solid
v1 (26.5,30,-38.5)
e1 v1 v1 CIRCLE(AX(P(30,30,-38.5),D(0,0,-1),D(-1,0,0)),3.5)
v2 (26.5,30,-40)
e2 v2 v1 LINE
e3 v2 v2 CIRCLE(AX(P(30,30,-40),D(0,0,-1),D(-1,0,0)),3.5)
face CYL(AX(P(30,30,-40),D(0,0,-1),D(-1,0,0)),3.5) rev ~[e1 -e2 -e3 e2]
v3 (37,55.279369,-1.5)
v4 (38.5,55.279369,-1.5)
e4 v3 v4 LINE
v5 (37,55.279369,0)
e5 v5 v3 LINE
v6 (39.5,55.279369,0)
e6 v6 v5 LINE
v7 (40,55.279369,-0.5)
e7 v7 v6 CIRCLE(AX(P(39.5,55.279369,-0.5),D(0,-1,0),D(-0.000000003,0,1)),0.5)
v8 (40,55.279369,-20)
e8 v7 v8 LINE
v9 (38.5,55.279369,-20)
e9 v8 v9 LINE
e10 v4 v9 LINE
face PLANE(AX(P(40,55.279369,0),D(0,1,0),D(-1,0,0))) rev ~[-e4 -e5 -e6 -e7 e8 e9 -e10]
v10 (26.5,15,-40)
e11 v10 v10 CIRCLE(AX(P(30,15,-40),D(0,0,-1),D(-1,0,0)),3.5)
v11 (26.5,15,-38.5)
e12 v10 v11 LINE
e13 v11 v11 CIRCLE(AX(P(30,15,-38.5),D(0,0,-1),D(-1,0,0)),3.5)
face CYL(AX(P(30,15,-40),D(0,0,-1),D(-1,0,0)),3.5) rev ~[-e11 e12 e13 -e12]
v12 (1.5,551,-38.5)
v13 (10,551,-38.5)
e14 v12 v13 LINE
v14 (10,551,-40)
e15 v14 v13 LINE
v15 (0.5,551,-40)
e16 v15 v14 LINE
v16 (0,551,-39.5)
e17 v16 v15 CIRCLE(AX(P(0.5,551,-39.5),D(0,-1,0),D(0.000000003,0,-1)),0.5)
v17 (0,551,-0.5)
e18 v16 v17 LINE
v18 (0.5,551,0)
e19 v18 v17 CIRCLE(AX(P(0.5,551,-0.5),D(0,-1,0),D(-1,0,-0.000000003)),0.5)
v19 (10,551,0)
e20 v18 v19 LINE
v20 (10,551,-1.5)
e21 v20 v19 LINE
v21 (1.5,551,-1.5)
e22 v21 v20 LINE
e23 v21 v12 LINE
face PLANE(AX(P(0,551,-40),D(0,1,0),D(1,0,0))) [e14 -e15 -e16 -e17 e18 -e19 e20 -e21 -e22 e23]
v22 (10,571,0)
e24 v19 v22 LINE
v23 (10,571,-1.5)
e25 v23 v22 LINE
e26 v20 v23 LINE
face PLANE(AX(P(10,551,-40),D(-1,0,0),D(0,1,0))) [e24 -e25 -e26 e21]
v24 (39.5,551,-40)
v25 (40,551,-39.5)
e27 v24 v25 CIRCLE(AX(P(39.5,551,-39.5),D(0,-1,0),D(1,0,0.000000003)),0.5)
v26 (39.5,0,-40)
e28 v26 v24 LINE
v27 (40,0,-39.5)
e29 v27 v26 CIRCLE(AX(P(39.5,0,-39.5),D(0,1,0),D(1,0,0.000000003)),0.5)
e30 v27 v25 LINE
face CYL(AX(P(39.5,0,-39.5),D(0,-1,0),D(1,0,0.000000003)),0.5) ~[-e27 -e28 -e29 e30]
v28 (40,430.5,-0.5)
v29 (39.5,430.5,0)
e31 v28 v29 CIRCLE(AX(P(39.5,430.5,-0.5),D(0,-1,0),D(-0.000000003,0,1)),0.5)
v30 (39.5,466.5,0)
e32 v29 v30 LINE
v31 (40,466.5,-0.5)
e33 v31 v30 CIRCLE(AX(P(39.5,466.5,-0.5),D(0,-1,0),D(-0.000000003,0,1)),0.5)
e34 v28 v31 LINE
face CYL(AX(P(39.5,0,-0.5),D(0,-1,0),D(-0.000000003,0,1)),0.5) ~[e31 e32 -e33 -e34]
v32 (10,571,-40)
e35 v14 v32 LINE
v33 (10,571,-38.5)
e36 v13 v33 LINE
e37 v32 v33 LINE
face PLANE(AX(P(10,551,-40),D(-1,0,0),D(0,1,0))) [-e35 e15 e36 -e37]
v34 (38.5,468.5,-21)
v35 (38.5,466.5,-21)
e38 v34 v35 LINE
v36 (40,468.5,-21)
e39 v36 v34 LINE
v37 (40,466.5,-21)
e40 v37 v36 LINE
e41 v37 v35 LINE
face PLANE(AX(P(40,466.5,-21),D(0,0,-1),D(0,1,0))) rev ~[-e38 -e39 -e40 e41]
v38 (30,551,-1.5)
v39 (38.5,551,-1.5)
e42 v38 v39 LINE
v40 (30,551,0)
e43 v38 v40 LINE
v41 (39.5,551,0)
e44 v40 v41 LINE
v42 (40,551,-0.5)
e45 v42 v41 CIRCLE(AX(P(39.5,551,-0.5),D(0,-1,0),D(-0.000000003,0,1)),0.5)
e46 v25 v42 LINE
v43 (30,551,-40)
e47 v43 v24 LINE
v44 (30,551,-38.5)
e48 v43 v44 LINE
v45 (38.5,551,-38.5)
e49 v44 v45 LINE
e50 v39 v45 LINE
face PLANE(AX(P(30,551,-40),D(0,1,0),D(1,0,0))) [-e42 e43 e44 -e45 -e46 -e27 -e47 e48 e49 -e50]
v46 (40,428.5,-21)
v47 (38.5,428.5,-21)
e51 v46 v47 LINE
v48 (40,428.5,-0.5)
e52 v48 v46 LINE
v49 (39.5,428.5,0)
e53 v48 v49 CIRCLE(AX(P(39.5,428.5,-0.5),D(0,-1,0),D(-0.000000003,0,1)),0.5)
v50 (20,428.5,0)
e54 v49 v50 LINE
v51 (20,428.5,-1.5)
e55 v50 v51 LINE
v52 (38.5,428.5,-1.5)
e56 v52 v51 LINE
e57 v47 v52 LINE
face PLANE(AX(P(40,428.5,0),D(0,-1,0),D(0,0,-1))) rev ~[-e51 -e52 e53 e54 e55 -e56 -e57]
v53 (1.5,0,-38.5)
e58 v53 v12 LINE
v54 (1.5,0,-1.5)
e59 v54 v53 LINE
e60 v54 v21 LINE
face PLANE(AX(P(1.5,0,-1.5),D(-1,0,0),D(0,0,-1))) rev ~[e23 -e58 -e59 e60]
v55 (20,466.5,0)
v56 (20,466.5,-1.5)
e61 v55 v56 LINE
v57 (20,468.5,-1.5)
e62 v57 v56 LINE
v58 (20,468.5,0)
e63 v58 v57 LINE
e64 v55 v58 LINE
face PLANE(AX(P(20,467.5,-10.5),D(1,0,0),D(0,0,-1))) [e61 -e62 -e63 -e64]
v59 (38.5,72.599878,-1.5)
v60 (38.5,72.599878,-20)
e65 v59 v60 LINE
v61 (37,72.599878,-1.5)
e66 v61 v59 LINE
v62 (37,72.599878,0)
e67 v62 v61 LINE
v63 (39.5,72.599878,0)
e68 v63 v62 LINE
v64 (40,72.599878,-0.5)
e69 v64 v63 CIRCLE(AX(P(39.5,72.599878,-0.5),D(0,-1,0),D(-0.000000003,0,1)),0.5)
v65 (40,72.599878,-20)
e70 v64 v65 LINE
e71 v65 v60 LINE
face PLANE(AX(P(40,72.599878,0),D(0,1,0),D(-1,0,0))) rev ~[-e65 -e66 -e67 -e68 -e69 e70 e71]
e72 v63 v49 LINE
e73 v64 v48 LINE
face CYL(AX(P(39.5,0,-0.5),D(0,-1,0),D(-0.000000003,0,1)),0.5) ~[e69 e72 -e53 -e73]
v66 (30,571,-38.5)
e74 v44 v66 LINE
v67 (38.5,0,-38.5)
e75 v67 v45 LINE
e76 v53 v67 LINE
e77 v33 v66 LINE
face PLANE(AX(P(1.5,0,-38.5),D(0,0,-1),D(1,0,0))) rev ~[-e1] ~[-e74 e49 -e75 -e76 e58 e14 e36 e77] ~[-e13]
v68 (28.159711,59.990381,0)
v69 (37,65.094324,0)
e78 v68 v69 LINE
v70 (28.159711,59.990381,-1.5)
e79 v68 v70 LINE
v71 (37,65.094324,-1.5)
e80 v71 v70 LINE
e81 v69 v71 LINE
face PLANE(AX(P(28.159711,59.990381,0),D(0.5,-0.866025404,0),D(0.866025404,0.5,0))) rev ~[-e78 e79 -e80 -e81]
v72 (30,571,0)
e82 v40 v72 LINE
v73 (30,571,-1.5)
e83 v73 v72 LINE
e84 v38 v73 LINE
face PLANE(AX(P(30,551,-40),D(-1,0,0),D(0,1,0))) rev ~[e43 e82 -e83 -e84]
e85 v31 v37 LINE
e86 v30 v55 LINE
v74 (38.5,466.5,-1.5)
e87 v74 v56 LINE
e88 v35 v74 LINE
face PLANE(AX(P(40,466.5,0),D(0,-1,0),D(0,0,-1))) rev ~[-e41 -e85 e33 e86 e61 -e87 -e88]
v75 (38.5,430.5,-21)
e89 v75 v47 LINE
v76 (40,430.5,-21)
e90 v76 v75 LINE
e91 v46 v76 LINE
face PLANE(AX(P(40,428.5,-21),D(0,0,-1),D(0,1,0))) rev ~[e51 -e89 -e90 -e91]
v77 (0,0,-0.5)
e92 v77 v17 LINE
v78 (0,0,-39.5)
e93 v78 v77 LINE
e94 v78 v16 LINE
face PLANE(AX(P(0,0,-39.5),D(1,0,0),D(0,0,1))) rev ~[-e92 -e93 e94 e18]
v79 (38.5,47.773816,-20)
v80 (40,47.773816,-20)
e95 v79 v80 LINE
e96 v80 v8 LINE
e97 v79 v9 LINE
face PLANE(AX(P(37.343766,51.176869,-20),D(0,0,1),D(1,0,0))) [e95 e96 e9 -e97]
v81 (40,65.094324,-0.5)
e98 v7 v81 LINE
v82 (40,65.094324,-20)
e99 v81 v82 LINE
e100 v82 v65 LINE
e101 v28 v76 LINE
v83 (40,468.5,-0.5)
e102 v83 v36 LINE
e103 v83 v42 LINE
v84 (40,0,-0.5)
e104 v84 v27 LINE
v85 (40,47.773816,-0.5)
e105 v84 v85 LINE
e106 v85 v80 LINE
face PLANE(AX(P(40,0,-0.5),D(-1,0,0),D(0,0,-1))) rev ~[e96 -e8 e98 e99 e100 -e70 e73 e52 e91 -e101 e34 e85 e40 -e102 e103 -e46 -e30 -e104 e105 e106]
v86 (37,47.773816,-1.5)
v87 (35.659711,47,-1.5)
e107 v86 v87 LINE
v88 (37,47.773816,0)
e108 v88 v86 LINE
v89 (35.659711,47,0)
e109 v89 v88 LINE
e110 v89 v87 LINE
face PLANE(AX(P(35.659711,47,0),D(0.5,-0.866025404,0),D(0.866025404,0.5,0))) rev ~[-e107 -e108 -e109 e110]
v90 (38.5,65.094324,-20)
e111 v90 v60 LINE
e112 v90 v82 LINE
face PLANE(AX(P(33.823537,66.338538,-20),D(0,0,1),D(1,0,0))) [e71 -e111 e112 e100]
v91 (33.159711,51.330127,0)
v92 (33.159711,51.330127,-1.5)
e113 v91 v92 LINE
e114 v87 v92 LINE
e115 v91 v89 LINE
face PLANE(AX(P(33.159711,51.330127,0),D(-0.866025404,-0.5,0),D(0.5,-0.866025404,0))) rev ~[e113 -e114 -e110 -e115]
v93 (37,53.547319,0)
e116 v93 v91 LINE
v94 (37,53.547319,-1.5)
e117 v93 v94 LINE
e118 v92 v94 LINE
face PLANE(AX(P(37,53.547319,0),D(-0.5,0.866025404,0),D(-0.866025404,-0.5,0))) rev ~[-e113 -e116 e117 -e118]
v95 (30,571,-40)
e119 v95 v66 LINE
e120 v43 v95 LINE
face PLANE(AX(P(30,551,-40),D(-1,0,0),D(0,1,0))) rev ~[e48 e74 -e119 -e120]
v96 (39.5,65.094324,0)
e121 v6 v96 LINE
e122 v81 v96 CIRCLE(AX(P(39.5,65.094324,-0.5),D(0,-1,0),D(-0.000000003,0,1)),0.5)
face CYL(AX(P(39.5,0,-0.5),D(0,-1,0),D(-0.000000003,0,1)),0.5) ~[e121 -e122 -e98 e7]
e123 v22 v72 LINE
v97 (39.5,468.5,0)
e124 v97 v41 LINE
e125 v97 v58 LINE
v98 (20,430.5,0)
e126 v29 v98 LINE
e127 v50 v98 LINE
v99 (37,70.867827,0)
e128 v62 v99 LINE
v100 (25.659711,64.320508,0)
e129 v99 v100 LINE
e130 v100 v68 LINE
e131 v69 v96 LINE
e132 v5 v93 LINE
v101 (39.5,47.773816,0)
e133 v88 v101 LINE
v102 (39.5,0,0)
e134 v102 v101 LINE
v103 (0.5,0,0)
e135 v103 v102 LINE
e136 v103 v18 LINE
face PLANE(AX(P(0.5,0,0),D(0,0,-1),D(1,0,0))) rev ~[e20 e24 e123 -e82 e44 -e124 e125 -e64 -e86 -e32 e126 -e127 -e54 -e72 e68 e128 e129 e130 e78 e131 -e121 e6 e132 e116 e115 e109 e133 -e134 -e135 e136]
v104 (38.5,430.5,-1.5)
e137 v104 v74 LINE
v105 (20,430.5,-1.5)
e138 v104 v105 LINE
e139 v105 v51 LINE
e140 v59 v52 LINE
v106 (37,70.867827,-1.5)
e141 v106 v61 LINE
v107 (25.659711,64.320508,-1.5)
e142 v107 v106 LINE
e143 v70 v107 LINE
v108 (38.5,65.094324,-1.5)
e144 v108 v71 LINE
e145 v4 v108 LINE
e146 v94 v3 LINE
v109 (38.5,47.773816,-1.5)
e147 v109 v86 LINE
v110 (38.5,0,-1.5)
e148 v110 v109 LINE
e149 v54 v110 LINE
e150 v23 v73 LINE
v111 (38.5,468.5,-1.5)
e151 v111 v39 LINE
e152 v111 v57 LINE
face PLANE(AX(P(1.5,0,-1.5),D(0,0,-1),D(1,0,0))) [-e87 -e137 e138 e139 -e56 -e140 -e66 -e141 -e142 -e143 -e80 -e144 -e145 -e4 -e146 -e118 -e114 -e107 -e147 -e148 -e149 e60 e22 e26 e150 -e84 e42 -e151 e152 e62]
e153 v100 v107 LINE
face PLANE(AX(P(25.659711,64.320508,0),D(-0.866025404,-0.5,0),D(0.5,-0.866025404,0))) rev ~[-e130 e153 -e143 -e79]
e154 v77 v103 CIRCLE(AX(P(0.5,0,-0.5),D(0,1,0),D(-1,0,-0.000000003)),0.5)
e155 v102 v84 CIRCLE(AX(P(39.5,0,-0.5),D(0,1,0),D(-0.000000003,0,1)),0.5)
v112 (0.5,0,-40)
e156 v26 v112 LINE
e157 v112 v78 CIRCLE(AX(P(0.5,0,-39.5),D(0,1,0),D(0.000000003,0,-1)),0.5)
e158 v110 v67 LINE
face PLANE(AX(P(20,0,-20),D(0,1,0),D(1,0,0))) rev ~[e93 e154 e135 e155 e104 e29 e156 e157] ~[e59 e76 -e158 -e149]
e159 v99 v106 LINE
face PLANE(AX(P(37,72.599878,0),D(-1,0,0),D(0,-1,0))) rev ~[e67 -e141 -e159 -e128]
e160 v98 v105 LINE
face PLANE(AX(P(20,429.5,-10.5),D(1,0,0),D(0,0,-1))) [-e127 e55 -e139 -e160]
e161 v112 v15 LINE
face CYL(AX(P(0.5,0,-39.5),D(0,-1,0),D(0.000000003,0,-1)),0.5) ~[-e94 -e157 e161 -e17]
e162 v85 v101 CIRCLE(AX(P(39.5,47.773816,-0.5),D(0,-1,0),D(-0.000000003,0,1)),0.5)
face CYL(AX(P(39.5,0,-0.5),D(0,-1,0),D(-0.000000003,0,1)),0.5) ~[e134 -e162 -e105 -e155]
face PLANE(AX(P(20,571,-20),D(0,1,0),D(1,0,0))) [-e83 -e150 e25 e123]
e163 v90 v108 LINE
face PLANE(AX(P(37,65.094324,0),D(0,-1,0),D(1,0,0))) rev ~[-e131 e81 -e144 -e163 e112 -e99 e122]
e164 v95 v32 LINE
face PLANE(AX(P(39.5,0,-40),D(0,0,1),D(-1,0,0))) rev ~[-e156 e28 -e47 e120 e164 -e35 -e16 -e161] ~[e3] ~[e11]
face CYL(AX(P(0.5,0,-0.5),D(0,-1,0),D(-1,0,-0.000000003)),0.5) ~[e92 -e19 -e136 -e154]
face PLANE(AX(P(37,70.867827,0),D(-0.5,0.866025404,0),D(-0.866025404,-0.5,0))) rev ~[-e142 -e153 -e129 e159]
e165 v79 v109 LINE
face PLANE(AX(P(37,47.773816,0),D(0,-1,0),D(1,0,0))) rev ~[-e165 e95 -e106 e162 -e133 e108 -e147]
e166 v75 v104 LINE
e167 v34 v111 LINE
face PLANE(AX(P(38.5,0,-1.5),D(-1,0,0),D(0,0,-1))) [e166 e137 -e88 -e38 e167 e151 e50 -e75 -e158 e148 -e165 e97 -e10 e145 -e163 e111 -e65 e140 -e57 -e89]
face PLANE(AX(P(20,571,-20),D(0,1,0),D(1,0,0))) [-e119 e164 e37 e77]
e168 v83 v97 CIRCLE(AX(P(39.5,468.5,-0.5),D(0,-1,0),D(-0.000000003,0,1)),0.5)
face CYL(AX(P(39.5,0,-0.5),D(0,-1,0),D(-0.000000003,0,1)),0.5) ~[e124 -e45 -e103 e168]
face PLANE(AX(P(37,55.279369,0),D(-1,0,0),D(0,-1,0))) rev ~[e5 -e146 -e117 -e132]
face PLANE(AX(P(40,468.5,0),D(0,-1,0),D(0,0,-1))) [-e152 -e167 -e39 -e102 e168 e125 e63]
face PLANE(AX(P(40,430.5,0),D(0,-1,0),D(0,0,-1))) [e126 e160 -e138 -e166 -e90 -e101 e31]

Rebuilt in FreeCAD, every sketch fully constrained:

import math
import FreeCAD as App
import Part
import Sketcher

V = App.Vector
Q = App.Units.Quantity


def add_polygon(sketch, points):
    """Adds a closed chain of lines whose ends are joined by coincident constraints."""
    first, n = sketch.GeometryCount, len(points)
    for a, b in zip(points, points[1:] + points[:1]):
        sketch.addGeometry(Part.LineSegment(App.Vector(*a, 0), App.Vector(*b, 0)), False)
    for i in range(n):
        sketch.addConstraint(Sketcher.Constraint("Coincident", first + i, 2, first + (i + 1) % n, 1))

doc = App.newDocument("Part")
body = doc.addObject("PartDesign::Body", "Body")

sketch1 = doc.addObject("Sketcher::SketchObject", "Sketch")
body.addObject(sketch1)
sketch1.AttachmentSupport = (doc.XZ_Plane, [""])
sketch1.MapMode = "FlatFace"
sketch1.addGeometry(Part.LineSegment(V(0.5, 0, 0), V(39.5, 0, 0)), False)
sketch1.addGeometry(Part.ArcOfCircle(Part.Circle(V(39.5, -0.5, 0), V(0, 0, 1), 0.5), math.radians(0), math.radians(90)), False)
sketch1.addGeometry(Part.LineSegment(V(40, -0.5, 0), V(40, -39.5, 0)), False)
sketch1.addGeometry(Part.ArcOfCircle(Part.Circle(V(39.5, -39.5, 0), V(0, 0, 1), 0.5), math.radians(-90), math.radians(0)), False)
sketch1.addGeometry(Part.LineSegment(V(39.5, -40, 0), V(0.5, -40, 0)), False)
sketch1.addGeometry(Part.ArcOfCircle(Part.Circle(V(0.5, -39.5, 0), V(0, 0, 1), 0.5), math.radians(180), math.radians(270)), False)
sketch1.addGeometry(Part.LineSegment(V(0, -39.5, 0), V(0, -0.5, 0)), False)
sketch1.addGeometry(Part.ArcOfCircle(Part.Circle(V(0.5, -0.5, 0), V(0, 0, 1), 0.5), math.radians(90), math.radians(180)), False)
add_polygon(sketch1, [(38.5, -1.5), (1.5, -1.5), (1.5, -38.5), (38.5, -38.5)])
sketch1.addConstraint([
    Sketcher.Constraint("Tangent", 0, 2, 1, 2),
    Sketcher.Constraint("Tangent", 1, 1, 2, 1),
    Sketcher.Constraint("Tangent", 2, 2, 3, 2),
    Sketcher.Constraint("Tangent", 3, 1, 4, 1),
    Sketcher.Constraint("Tangent", 4, 2, 5, 2),
    Sketcher.Constraint("Tangent", 5, 1, 6, 1),
    Sketcher.Constraint("Tangent", 6, 2, 7, 2),
    Sketcher.Constraint("Tangent", 7, 1, 0, 1),
    Sketcher.Constraint("Horizontal", 0),
    Sketcher.Constraint("Vertical", 2),
    Sketcher.Constraint("Horizontal", 4),
    Sketcher.Constraint("Vertical", 6),
    Sketcher.Constraint("Horizontal", 8),
    Sketcher.Constraint("Vertical", 9),
    Sketcher.Constraint("Horizontal", 10),
    Sketcher.Constraint("Vertical", 11),
    Sketcher.Constraint("Equal", 1, 3),
    Sketcher.Constraint("Equal", 3, 5),
    Sketcher.Constraint("Equal", 5, 7),
    Sketcher.Constraint("PointOnObject", 0, 2, -1),
    Sketcher.Constraint("PointOnObject", 5, 1, -2),
    Sketcher.Constraint("Equal", 4, 2),
    Sketcher.Constraint("Equal", 10, 9),
    Sketcher.Constraint("Radius", 1, Q("0.5 mm")),
    Sketcher.Constraint("DistanceX", 0, 1, 0, 2, Q("39 mm")),
    Sketcher.Constraint("DistanceX", 8, 2, 8, 1, Q("37 mm")),
    Sketcher.Constraint("DistanceX", 7, 3, 8, 2, Q("1 mm")),
    Sketcher.Constraint("DistanceY", 8, 2, 7, 3, Q("1 mm")),
])
pad1 = doc.addObject("PartDesign::Pad", "Pad")
body.addObject(pad1)
pad1.Profile = sketch1
pad1.Length = 571
pad1.Reversed = True

sketch2 = doc.addObject("Sketcher::SketchObject", "Sketch001")
body.addObject(sketch2)
sketch2.AttachmentSupport = (doc.XY_Plane, [""])
sketch2.MapMode = "FlatFace"
sketch2.AttachmentOffset = App.Placement(V(0, 0, -40), App.Rotation())
add_polygon(sketch2, [(30, 571), (30, 551), (40, 551), (40, 571)])
add_polygon(sketch2, [(0, 571), (0, 551), (10, 551), (10, 571)])
sketch2.addConstraint([
    Sketcher.Constraint("Vertical", 0),
    Sketcher.Constraint("Horizontal", 1),
    Sketcher.Constraint("Vertical", 2),
    Sketcher.Constraint("Horizontal", 3),
    Sketcher.Constraint("Vertical", 4),
    Sketcher.Constraint("Horizontal", 5),
    Sketcher.Constraint("Vertical", 6),
    Sketcher.Constraint("Horizontal", 7),
    Sketcher.Constraint("PointOnObject", 4, 2, -2),
    Sketcher.Constraint("Horizontal", 1, 2, 4, 2),
    Sketcher.Constraint("Horizontal", 3, 2, 6, 2),
    Sketcher.Constraint("Equal", 3, 5),
    Sketcher.Constraint("DistanceX", 1, 1, 1, 2, Q("10 mm")),
    Sketcher.Constraint("DistanceY", 0, 2, 0, 1, Q("20 mm")),
    Sketcher.Constraint("DistanceX", -1, 1, 0, 2, Q("30 mm")),
    Sketcher.Constraint("DistanceY", -1, 1, 0, 2, Q("551 mm")),
])
pocket1 = doc.addObject("PartDesign::Pocket", "Pocket")
body.addObject(pocket1)
pocket1.Profile = sketch2
pocket1.Length = 40
pocket1.Reversed = True

sketch3 = doc.addObject("Sketcher::SketchObject", "Sketch002")
body.addObject(sketch3)
sketch3.AttachmentSupport = (doc.YZ_Plane, [""])
sketch3.MapMode = "FlatFace"
sketch3.AttachmentOffset = App.Placement(V(0, 0, 40), App.Rotation())
add_polygon(sketch3, [(468.5, 0), (466.5, 0), (466.5, -21), (468.5, -21)])
add_polygon(sketch3, [(430.5, 0), (428.5, 0), (428.5, -21), (430.5, -21)])
sketch3.addConstraint([
    Sketcher.Constraint("Horizontal", 0),
    Sketcher.Constraint("Vertical", 1),
    Sketcher.Constraint("Horizontal", 2),
    Sketcher.Constraint("Vertical", 3),
    Sketcher.Constraint("Horizontal", 4),
    Sketcher.Constraint("Vertical", 5),
    Sketcher.Constraint("Horizontal", 6),
    Sketcher.Constraint("Vertical", 7),
    Sketcher.Constraint("PointOnObject", 0, 2, -1),
    Sketcher.Constraint("PointOnObject", 4, 2, -1),
    Sketcher.Constraint("Horizontal", 2, 2, 5, 2),
    Sketcher.Constraint("Equal", 2, 4),
    Sketcher.Constraint("DistanceX", 0, 2, 0, 1, Q("2 mm")),
    Sketcher.Constraint("DistanceY", 1, 2, 1, 1, Q("21 mm")),
    Sketcher.Constraint("DistanceX", 4, 2, 0, 2, Q("38 mm")),
    Sketcher.Constraint("DistanceX", -1, 1, 0, 2, Q("466.5 mm")),
])
pocket2 = doc.addObject("PartDesign::Pocket", "Pocket001")
body.addObject(pocket2)
pocket2.Profile = sketch3
pocket2.Length = 20

sketch4 = doc.addObject("Sketcher::SketchObject", "Sketch003")
body.addObject(sketch4)
sketch4.AttachmentSupport = (doc.XY_Plane, [""])
sketch4.MapMode = "FlatFace"
add_polygon(sketch4, [(37, 72.6), (40, 72.6), (40, 65.1), (37, 65.1), (28.2, 60), (25.7, 64.3), (37, 70.9)])
add_polygon(sketch4, [(37, 55.3), (40, 55.3), (40, 47.8), (37, 47.8), (35.7, 47), (33.2, 51.3), (37, 53.5)])
sketch4.addConstraint([
    Sketcher.Constraint("Horizontal", 0),
    Sketcher.Constraint("Vertical", 1),
    Sketcher.Constraint("Horizontal", 2),
    Sketcher.Constraint("Vertical", 6),
    Sketcher.Constraint("Horizontal", 7),
    Sketcher.Constraint("Vertical", 8),
    Sketcher.Constraint("Horizontal", 9),
    Sketcher.Constraint("Vertical", 13),
    Sketcher.Constraint("Perpendicular", 3, 4),
    Sketcher.Constraint("Perpendicular", 4, 5),
    Sketcher.Constraint("Parallel", 5, 10),
    Sketcher.Constraint("Perpendicular", 10, 11),
    Sketcher.Constraint("Perpendicular", 11, 12),
    Sketcher.Constraint("Vertical", 2, 2, 5, 2),
    Sketcher.Constraint("Vertical", 1, 2, 7, 2),
    Sketcher.Constraint("Vertical", 6, 2, 9, 2),
    Sketcher.Constraint("Vertical", 9, 2, 12, 2),
    Sketcher.Constraint("Equal", 1, 8),
    Sketcher.Constraint("Equal", 6, 13),
    Sketcher.Constraint("DistanceX", 0, 1, 0, 2, Q("3 mm")),
    Sketcher.Constraint("Angle", 3, Q("-150 deg")),
    Sketcher.Constraint("Distance", 4, Q("5 mm")),
    Sketcher.Constraint("DistanceX", -1, 1, 0, 2, Q("40 mm")),
    Sketcher.Constraint("DistanceY", -1, 1, 10, 2, Q("47 mm")),
    Sketcher.Constraint("DistanceX", 3, 2, 11, 2, Q("5 mm")),
    Sketcher.Constraint("DistanceY", 6, 1, 6, 2, Q("1.732051 mm")),
    Sketcher.Constraint("Distance", 10, Q("1.547632 mm")),
    Sketcher.Constraint("DistanceY", -1, 1, 3, 2, Q("59.990381 mm")),
])
pocket3 = doc.addObject("PartDesign::Pocket", "Pocket002")
body.addObject(pocket3)
pocket3.Profile = sketch4
pocket3.Length = 20

sketch5 = doc.addObject("Sketcher::SketchObject", "Sketch004")
body.addObject(sketch5)
sketch5.AttachmentSupport = (doc.XY_Plane, [""])
sketch5.MapMode = "FlatFace"
sketch5.AttachmentOffset = App.Placement(V(0, 0, -40), App.Rotation())
sketch5.addGeometry([
    Part.Circle(V(30, 15, 0), V(0, 0, 1), 3.5),
    Part.Circle(V(30, 30, 0), V(0, 0, 1), 3.5),
], False)
sketch5.addConstraint([
    Sketcher.Constraint("Equal", 0, 1),
    Sketcher.Constraint("Vertical", 0, 3, 1, 3),
    Sketcher.Constraint("Diameter", 0, Q("7 mm")),
    Sketcher.Constraint("DistanceX", -1, 1, 0, 3, Q("30 mm")),
    Sketcher.Constraint("DistanceY", -1, 1, 0, 3, Q("15 mm")),
    Sketcher.Constraint("DistanceY", -1, 1, 1, 3, Q("30 mm")),
])
pocket4 = doc.addObject("PartDesign::Pocket", "Pocket003")
body.addObject(pocket4)
pocket4.Profile = sketch5
pocket4.Length = 10
pocket4.Reversed = True

doc.recompute()
